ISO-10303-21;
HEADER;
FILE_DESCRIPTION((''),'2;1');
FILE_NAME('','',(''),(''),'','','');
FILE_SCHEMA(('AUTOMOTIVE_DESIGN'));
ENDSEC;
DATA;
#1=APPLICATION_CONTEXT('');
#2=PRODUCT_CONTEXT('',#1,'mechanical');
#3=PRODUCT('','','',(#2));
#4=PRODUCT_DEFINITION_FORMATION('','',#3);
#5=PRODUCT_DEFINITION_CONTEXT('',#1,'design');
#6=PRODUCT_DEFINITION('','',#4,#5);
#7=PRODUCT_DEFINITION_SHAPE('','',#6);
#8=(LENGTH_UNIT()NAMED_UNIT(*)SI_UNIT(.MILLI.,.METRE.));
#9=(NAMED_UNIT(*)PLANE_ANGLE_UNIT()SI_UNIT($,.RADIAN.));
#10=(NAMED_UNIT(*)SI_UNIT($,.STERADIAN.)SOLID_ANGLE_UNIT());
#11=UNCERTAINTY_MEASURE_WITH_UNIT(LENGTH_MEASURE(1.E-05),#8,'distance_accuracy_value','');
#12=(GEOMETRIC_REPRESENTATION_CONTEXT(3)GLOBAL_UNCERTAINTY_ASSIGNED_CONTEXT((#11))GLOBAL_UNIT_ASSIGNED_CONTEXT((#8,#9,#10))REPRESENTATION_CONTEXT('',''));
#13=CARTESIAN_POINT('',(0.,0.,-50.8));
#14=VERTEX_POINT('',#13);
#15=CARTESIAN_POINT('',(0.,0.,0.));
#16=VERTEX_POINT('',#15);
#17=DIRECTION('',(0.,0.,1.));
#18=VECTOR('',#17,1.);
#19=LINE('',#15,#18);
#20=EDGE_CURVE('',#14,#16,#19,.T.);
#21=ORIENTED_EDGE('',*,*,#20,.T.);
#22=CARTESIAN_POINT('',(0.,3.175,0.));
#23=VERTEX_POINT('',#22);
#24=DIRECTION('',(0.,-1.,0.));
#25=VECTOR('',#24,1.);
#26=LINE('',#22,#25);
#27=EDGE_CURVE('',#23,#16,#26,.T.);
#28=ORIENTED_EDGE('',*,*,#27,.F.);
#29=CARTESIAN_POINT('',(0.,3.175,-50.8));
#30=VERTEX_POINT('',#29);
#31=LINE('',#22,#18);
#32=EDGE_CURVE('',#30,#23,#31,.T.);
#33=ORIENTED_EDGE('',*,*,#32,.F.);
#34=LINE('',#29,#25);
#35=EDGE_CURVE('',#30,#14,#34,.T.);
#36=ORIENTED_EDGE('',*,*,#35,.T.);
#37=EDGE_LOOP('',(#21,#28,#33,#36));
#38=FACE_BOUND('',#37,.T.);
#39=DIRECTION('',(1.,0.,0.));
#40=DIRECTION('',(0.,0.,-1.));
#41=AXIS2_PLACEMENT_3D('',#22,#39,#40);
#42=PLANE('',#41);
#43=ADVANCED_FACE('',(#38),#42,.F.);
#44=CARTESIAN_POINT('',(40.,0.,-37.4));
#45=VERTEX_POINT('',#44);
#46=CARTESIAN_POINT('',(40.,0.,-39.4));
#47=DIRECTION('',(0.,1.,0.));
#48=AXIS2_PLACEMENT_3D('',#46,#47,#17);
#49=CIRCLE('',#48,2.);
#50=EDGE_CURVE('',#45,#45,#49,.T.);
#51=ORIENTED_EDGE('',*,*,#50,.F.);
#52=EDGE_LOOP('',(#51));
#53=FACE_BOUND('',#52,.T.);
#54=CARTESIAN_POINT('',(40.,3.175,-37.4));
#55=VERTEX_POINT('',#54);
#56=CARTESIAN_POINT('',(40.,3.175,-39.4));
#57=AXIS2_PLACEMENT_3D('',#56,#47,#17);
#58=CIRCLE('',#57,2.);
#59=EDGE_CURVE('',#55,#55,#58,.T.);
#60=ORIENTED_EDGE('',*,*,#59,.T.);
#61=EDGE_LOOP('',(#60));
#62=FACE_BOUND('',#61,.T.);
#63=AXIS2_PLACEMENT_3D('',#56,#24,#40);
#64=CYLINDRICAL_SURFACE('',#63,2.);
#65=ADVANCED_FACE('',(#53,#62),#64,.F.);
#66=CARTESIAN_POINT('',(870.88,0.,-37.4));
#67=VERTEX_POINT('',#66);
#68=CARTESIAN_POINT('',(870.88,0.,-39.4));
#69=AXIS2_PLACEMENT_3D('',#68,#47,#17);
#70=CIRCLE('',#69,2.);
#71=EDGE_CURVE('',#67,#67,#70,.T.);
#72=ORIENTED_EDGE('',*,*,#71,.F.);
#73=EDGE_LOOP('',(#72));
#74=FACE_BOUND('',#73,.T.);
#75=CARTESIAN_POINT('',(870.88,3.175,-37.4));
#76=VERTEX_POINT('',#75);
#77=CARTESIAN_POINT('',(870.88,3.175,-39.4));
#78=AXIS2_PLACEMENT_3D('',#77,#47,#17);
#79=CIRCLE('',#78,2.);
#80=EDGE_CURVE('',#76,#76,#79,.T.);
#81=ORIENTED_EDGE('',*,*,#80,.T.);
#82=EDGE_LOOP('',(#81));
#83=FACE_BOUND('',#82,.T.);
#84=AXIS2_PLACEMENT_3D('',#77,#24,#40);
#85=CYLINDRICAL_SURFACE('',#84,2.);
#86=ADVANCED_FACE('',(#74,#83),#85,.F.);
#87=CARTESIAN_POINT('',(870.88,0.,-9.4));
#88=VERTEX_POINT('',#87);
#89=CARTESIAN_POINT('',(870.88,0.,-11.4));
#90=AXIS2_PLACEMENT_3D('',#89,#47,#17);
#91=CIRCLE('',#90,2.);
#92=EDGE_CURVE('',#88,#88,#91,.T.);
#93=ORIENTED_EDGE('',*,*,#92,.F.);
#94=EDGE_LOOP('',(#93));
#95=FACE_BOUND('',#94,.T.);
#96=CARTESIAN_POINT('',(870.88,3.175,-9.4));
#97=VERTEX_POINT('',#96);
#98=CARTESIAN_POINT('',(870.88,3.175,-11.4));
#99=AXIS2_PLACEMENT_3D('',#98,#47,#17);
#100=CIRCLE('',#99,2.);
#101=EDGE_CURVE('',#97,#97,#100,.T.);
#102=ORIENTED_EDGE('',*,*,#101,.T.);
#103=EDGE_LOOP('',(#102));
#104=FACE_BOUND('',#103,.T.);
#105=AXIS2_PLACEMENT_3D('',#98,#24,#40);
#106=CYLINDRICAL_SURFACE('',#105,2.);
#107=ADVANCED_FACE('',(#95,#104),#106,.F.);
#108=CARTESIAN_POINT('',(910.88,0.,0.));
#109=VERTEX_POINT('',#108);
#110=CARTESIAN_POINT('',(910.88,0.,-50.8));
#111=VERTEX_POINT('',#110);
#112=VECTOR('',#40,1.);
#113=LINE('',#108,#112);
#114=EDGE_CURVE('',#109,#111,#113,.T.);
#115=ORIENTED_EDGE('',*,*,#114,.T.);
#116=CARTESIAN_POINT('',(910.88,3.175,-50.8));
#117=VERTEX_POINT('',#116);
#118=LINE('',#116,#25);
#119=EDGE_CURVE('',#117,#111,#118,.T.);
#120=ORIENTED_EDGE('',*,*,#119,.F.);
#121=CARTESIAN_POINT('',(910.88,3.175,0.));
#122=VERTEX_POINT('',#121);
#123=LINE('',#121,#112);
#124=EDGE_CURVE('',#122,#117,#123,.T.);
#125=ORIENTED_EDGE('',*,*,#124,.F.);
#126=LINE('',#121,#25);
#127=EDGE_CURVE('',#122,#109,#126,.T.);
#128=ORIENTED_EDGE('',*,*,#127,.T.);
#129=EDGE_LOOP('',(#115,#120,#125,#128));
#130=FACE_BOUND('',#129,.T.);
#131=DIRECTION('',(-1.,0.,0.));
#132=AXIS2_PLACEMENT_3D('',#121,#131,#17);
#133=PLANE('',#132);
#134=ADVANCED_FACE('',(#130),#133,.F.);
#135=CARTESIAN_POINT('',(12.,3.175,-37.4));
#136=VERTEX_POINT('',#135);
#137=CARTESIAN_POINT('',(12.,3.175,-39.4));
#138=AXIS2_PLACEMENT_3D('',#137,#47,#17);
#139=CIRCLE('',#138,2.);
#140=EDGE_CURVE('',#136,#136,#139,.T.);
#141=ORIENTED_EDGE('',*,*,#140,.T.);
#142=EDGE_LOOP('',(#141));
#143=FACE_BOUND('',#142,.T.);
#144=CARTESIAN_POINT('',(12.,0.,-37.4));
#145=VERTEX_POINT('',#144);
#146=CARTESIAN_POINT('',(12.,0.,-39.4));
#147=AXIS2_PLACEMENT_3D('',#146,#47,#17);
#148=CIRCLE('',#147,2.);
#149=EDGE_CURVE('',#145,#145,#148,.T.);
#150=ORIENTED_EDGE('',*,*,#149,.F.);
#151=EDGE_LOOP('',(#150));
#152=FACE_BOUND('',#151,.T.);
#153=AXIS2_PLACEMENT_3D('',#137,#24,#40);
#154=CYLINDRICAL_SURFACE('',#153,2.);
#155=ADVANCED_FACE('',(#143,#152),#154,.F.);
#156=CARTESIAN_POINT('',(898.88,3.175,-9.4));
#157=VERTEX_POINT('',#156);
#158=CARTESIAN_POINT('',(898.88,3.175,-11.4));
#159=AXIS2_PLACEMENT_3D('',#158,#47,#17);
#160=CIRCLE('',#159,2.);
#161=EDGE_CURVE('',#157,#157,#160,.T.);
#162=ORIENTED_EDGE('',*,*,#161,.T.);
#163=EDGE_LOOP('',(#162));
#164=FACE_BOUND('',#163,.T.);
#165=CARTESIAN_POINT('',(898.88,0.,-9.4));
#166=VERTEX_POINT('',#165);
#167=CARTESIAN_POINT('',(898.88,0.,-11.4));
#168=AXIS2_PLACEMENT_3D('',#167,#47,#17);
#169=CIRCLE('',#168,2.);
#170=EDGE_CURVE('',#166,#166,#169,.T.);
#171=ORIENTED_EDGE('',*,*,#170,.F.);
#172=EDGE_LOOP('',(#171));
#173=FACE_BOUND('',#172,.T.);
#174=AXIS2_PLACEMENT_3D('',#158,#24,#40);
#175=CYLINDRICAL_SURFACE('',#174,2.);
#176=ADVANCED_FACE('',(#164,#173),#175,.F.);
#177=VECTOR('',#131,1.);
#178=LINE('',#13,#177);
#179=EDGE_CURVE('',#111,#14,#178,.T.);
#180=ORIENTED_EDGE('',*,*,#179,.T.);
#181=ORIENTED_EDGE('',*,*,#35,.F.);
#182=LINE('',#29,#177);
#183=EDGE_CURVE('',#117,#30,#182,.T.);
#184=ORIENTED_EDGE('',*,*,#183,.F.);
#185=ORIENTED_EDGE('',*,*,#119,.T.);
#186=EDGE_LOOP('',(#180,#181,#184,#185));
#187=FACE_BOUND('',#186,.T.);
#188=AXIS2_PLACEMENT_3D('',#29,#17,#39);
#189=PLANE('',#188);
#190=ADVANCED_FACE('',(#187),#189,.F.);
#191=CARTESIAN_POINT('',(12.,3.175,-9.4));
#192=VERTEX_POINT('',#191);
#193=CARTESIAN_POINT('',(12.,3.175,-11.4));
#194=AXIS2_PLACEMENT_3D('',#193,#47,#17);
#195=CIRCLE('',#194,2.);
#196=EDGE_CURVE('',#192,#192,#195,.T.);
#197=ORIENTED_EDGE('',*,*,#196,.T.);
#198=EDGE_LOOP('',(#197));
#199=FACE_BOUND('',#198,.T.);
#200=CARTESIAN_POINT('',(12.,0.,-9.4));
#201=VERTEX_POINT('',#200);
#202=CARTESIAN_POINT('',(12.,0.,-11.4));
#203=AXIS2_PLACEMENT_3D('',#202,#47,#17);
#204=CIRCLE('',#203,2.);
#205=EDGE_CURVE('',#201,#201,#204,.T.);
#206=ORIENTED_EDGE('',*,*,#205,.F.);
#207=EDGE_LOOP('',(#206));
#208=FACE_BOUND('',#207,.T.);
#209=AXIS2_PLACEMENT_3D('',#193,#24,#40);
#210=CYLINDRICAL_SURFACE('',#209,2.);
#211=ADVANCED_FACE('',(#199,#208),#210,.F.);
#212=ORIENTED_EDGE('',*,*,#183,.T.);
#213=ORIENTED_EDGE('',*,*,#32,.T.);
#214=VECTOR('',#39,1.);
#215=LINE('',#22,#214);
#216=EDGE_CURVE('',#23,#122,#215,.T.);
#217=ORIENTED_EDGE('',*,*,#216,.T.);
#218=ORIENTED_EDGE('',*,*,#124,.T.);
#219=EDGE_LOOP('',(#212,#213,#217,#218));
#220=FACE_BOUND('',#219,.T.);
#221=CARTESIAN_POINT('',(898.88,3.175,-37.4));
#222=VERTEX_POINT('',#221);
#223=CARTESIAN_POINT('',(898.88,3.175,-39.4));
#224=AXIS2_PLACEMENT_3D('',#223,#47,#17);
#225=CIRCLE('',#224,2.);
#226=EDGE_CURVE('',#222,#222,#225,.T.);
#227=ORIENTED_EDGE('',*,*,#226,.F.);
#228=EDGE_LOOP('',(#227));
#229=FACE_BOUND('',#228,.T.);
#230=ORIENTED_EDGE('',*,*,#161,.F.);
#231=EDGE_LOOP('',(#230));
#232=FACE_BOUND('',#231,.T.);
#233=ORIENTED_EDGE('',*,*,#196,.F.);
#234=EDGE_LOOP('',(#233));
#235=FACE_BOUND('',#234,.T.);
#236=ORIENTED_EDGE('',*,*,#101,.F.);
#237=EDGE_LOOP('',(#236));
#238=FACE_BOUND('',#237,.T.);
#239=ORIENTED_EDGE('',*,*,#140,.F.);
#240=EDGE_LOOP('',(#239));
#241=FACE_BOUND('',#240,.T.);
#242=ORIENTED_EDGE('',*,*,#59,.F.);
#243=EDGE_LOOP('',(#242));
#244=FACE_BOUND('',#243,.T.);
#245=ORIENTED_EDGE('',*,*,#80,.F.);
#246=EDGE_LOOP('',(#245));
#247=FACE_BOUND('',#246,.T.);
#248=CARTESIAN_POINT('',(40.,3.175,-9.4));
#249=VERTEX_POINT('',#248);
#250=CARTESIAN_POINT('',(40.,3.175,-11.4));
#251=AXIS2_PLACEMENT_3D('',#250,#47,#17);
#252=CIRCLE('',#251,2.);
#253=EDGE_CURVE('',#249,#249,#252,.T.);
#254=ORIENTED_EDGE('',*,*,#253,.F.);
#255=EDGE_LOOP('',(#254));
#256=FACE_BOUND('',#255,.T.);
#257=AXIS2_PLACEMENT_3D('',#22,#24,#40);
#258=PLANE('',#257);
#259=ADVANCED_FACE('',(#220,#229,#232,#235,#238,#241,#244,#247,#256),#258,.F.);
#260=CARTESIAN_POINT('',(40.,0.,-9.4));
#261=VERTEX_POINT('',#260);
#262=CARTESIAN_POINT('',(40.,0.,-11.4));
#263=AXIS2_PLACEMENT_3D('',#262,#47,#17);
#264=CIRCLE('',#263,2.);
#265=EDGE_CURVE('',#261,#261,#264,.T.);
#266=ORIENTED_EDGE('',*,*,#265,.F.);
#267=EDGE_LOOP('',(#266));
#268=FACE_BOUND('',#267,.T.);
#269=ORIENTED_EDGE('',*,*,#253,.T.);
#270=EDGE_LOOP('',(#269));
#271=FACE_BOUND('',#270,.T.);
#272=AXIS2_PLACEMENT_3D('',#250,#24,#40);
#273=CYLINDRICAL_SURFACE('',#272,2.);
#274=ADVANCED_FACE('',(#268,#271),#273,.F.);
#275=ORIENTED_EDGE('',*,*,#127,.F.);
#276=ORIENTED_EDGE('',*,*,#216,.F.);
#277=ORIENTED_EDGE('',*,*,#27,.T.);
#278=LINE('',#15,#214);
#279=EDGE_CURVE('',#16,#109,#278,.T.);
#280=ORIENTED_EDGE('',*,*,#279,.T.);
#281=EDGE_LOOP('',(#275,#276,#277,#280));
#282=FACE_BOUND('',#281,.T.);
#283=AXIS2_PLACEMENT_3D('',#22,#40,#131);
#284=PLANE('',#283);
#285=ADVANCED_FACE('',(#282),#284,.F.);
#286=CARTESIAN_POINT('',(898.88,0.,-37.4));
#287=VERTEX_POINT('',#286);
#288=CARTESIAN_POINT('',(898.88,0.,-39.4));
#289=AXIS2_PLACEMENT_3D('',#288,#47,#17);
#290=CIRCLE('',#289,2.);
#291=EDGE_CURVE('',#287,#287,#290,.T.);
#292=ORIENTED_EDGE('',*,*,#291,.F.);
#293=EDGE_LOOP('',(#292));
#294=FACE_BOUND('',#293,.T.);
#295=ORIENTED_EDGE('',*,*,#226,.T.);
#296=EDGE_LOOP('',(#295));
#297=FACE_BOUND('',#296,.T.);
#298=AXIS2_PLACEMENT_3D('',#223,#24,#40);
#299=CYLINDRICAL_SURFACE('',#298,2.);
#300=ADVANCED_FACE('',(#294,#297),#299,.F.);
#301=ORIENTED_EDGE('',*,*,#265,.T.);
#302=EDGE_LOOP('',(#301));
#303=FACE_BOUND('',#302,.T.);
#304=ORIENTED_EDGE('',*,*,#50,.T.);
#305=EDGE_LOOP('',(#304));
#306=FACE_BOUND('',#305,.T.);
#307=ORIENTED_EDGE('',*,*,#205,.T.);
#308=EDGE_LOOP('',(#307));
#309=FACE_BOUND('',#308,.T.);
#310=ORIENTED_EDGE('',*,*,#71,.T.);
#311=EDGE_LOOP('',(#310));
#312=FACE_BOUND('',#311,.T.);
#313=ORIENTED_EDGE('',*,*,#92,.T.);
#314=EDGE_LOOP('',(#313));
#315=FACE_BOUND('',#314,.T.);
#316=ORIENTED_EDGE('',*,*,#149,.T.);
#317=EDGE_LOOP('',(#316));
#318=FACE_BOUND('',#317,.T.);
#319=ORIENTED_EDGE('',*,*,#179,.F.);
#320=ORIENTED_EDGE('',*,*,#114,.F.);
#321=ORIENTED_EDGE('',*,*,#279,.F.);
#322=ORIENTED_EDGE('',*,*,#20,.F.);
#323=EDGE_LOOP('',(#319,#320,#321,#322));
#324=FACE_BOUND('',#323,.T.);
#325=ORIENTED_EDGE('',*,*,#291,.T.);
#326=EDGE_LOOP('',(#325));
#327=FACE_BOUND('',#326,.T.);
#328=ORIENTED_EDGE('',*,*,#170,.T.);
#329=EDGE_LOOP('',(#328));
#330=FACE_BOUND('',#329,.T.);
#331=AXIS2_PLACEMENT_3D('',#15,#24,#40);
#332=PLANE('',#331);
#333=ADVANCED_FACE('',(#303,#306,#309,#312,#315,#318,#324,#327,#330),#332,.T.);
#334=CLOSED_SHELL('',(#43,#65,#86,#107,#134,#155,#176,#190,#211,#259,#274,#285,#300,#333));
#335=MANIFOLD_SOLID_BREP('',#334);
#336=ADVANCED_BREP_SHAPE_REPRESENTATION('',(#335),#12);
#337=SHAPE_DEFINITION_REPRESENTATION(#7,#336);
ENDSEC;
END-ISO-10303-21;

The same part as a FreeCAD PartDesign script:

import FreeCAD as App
import Part
import Sketcher
from FreeCAD import Vector
Q = App.Units.Quantity

doc = App.newDocument("Part")
body = doc.addObject("PartDesign::Body", "Body")

# Sketch on XZ plane
sketch1 = body.newObject("Sketcher::SketchObject", "Sketch")
sketch1.AttachmentSupport = (doc.getObject("XZ_Plane"), [""])
sketch1.MapMode = "FlatFace"
sketch1.addGeometry([
    Part.LineSegment(Vector(0, -50.8, 0), Vector(0, 0, 0)),  # 0
    Part.LineSegment(Vector(0, 0, 0), Vector(910.9, 0, 0)),  # 1
    Part.LineSegment(Vector(910.9, 0, 0), Vector(910.9, -50.8, 0)),  # 2
    Part.LineSegment(Vector(910.9, -50.8, 0), Vector(0, -50.8, 0)),  # 3
    Part.Circle(Vector(12, -11.4, 0), Vector(0, 0, 1), 2),  # 4
    Part.Circle(Vector(40, -11.4, 0), Vector(0, 0, 1), 2),  # 5
    Part.Circle(Vector(870.9, -11.4, 0), Vector(0, 0, 1), 2),  # 6
    Part.Circle(Vector(898.9, -11.4, 0), Vector(0, 0, 1), 2),  # 7
    Part.Circle(Vector(12, -39.4, 0), Vector(0, 0, 1), 2),  # 8
    Part.Circle(Vector(40, -39.4, 0), Vector(0, 0, 1), 2),  # 9
    Part.Circle(Vector(870.9, -39.4, 0), Vector(0, 0, 1), 2),  # 10
    Part.Circle(Vector(898.9, -39.4, 0), Vector(0, 0, 1), 2),  # 11
], False)
sketch1.addConstraint([
    Sketcher.Constraint("Coincident", 0, 2, 1, 1),
    Sketcher.Constraint("Coincident", 1, 2, 2, 1),
    Sketcher.Constraint("Coincident", 2, 2, 3, 1),
    Sketcher.Constraint("Coincident", 3, 2, 0, 1),
    Sketcher.Constraint("Vertical", 0),
    Sketcher.Constraint("Horizontal", 1),
    Sketcher.Constraint("Vertical", 2),
    Sketcher.Constraint("Horizontal", 3),
    Sketcher.Constraint("Coincident", 0, 2, -1, 1),
    Sketcher.Constraint("Equal", 4, 5),
    Sketcher.Constraint("Equal", 5, 6),
    Sketcher.Constraint("Equal", 6, 7),
    Sketcher.Constraint("Equal", 7, 8),
    Sketcher.Constraint("Equal", 8, 9),
    Sketcher.Constraint("Equal", 9, 10),
    Sketcher.Constraint("Equal", 10, 11),
    Sketcher.Constraint("Horizontal", 4, 3, 5, 3),
    Sketcher.Constraint("Horizontal", 5, 3, 6, 3),
    Sketcher.Constraint("Horizontal", 6, 3, 7, 3),
    Sketcher.Constraint("Horizontal", 8, 3, 9, 3),
    Sketcher.Constraint("Horizontal", 9, 3, 10, 3),
    Sketcher.Constraint("Horizontal", 10, 3, 11, 3),
    Sketcher.Constraint("Vertical", 4, 3, 8, 3),
    Sketcher.Constraint("Vertical", 5, 3, 9, 3),
    Sketcher.Constraint("Vertical", 6, 3, 10, 3),
    Sketcher.Constraint("Vertical", 7, 3, 11, 3),
    Sketcher.Constraint("DistanceY", 0, 1, 0, 2, Q("2 in")),
    Sketcher.Constraint("Diameter", 4, Q("4 mm")),
    Sketcher.Constraint("DistanceX", 1, 1, 1, 2, Q("910.88 mm")),
    Sketcher.Constraint("DistanceX", -1, 1, 4, 3, Q("12 mm")),
    Sketcher.Constraint("DistanceY", 4, 3, -1, 1, Q("11.4 mm")),
    Sketcher.Constraint("DistanceX", -1, 1, 5, 3, Q("40 mm")),
    Sketcher.Constraint("DistanceX", -1, 1, 6, 3, Q("870.88 mm")),
    Sketcher.Constraint("DistanceX", -1, 1, 7, 3, Q("898.88 mm")),
    Sketcher.Constraint("DistanceY", 8, 3, -1, 1, Q("39.4 mm")),
])
pad1 = body.newObject("PartDesign::Pad", "Pad")
pad1.Profile = sketch1
pad1.Length = Q("0.125 in")
pad1.Reversed = True

doc.recompute()
